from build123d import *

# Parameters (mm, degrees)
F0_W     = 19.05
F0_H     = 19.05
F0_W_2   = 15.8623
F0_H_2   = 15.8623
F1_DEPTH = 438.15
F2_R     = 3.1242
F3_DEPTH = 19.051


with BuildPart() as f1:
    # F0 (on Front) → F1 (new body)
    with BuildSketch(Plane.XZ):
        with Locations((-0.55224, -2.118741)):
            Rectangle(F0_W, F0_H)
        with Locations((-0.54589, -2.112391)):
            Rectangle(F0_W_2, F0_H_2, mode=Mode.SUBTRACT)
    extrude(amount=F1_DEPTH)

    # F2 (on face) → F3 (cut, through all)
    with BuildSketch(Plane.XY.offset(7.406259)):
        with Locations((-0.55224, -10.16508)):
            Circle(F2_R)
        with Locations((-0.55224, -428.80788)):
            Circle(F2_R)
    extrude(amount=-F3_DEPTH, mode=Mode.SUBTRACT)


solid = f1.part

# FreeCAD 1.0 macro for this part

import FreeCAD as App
import Part
import Sketcher
from FreeCAD import Vector
Q = App.Units.Quantity


def add_polygon(sketch, points):
    """Adds a closed chain of lines whose ends are joined by coincident constraints."""
    first, n = sketch.GeometryCount, len(points)
    for a, b in zip(points, points[1:] + points[:1]):
        sketch.addGeometry(Part.LineSegment(App.Vector(*a, 0), App.Vector(*b, 0)), False)
    for i in range(n):
        sketch.addConstraint(Sketcher.Constraint("Coincident", first + i, 2, first + (i + 1) % n, 1))

doc = App.newDocument("Part")
body = doc.addObject("PartDesign::Body", "Body")

# Sketch on XZ plane
sketch1 = body.newObject("Sketcher::SketchObject", "Sketch")
sketch1.AttachmentSupport = (doc.getObject("XZ_Plane"), [""])
sketch1.MapMode = "FlatFace"
add_polygon(sketch1, [(-10.07724, 7.406259), (-10.07724, -11.643741), (8.97276, -11.643741), (8.97276, 7.406259)])  # lines 0-3
add_polygon(sketch1, [(7.38526, -10.043541), (-8.47704, -10.043541), (-8.47704, 5.818759), (7.38526, 5.818759)])  # lines 4-7
sketch1.addConstraint(Sketcher.Constraint("Vertical", 0))
sketch1.addConstraint(Sketcher.Constraint("Horizontal", 1))
sketch1.addConstraint(Sketcher.Constraint("Vertical", 2))
sketch1.addConstraint(Sketcher.Constraint("Horizontal", 3))
sketch1.addConstraint(Sketcher.Constraint("Horizontal", 4))
sketch1.addConstraint(Sketcher.Constraint("Vertical", 5))
sketch1.addConstraint(Sketcher.Constraint("Horizontal", 6))
sketch1.addConstraint(Sketcher.Constraint("Vertical", 7))
sketch1.addConstraint(Sketcher.Constraint("Equal", 3, 0))
sketch1.addConstraint(Sketcher.Constraint("Equal", 6, 5))
sketch1.addConstraint(Sketcher.Constraint("DistanceX", 1, 1, 1, 2, Q("0.75 in")))
sketch1.addConstraint(Sketcher.Constraint("DistanceX", 4, 2, 4, 1, Q("0.6245 in")))
sketch1.addConstraint(Sketcher.Constraint("DistanceX", 0, 2, 4, 2, Q("0.063 in")))
sketch1.addConstraint(Sketcher.Constraint("DistanceY", 0, 2, 4, 2, Q("0.063 in")))
sketch1.addConstraint(Sketcher.Constraint("DistanceX", 0, 2, -1, 1, 10.07724))
sketch1.addConstraint(Sketcher.Constraint("DistanceY", 0, 2, -1, 1, 11.643741))
pad1 = body.newObject("PartDesign::Pad", "Pad")
pad1.Profile = sketch1
pad1.Length = Q("17.25 in")

# Sketch on XY plane
sketch2 = body.newObject("Sketcher::SketchObject", "Sketch001")
sketch2.AttachmentSupport = (doc.getObject("XY_Plane"), [""])
sketch2.MapMode = "FlatFace"
sketch2.AttachmentOffset = App.Placement(Vector(0, 0, 7.406259), App.Rotation())
sketch2.addGeometry(Part.Circle(Vector(-0.55224, -10.16508, 0), Vector(0, 0, 1), 3.1242), False)
sketch2.addGeometry(Part.Circle(Vector(-0.55224, -428.80788, 0), Vector(0, 0, 1), 3.1242), False)
sketch2.addConstraint(Sketcher.Constraint("Equal", 0, 1))
sketch2.addConstraint(Sketcher.Constraint("Vertical", 0, 3, 1, 3))
sketch2.addConstraint(Sketcher.Constraint("Diameter", 0, Q("0.246 in")))
sketch2.addConstraint(Sketcher.Constraint("DistanceY", 1, 3, 0, 3, Q("16.482 in")))
sketch2.addConstraint(Sketcher.Constraint("DistanceY", 0, 3, -1, 1, Q("0.4002 in")))
sketch2.addConstraint(Sketcher.Constraint("DistanceX", 0, 3, -1, 1, 0.55224))
pocket1 = body.newObject("PartDesign::Pocket", "Pocket")
pocket1.Profile = sketch2
pocket1.Type = "ThroughAll"

doc.recompute()
